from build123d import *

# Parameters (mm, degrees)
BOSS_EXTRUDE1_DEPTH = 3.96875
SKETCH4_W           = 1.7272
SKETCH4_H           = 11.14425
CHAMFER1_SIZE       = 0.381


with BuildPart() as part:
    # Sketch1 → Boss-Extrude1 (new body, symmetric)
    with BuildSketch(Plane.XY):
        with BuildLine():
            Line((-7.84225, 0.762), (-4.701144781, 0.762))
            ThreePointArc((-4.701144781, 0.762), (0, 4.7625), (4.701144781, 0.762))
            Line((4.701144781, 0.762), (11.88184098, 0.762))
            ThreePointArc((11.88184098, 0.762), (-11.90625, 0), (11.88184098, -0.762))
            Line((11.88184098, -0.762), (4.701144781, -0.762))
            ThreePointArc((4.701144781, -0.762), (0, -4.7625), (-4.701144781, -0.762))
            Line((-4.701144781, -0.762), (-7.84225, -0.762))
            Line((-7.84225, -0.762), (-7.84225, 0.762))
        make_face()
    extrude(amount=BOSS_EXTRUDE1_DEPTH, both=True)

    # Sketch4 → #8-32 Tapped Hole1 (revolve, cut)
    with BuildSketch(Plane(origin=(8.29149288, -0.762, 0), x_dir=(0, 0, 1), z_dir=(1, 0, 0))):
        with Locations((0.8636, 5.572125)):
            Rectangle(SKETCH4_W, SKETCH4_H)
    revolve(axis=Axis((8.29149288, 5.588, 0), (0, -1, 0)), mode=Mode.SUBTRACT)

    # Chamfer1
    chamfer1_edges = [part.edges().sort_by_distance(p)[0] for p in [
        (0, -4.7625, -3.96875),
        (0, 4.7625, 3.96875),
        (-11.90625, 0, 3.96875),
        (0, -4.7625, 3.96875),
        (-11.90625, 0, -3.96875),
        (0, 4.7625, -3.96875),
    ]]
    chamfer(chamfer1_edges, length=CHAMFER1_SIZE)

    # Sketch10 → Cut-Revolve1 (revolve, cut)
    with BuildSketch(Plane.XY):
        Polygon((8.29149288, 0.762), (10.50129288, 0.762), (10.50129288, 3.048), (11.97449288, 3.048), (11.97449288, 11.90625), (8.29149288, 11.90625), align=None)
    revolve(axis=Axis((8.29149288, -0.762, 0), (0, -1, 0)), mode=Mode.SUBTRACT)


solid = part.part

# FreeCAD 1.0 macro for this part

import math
import FreeCAD as App
import Part
import Sketcher
Q = App.Units.Quantity


def edges_at(feature, points):
    """Names of the edges that pass closest to the given points."""
    edges = feature.Shape.Edges
    near = lambda p: min(range(len(edges)), key=lambda i: edges[i].distToShape(Part.Vertex(*p))[0])
    return sorted({f"Edge{near(p) + 1}" for p in points})

doc = App.newDocument("Part")
params = doc.addObject("Spreadsheet::Sheet", "Params")
for row, (alias, value) in enumerate([
    ("sketch1_radius", "0.1875 in"),
    ("sketch1_radius2", "0.46875 in"),
    ("sketch1_height", "0.06 in"),
    ("pad1_length", "0.3125 in"),
    ("sketch2_height", "0.068 in"),
    ("groove_angle", "360 deg"),
    ("chamfer_size", "0.015 in"),
    ("sketch3_height", "0.09 in"),
    ("sketch3_width", "0.087 in"),
    ("sketch3_width2", "0.058 in"),
    ("groove2_angle", "360 deg"),
], start=1):
    params.set(f"A{row}", alias)
    params.set(f"B{row}", "=" + value)
    params.setAlias(f"B{row}", alias)

body = doc.addObject("PartDesign::Body", "Body")

# Sketch on XY plane
sketch1 = body.newObject("Sketcher::SketchObject", "Sketch")
sketch1.AttachmentSupport = (doc.getObject("XY_Plane"), [""])
sketch1.MapMode = "FlatFace"
sketch1.addGeometry(Part.LineSegment(App.Vector(-7.8, 0.8, 0), App.Vector(-4.7, 0.8, 0)), False)
sketch1.addGeometry(Part.ArcOfCircle(Part.Circle(App.Vector(0, 0, 0), App.Vector(0, 0, 1), 4.8), math.radians(9), math.radians(171)), False)
sketch1.addGeometry(Part.LineSegment(App.Vector(4.7, 0.8, 0), App.Vector(11.9, 0.8, 0)), False)
sketch1.addGeometry(Part.ArcOfCircle(Part.Circle(App.Vector(0, 0, 0), App.Vector(0, 0, 1), 11.9), math.radians(4), math.radians(356)), False)
sketch1.addGeometry(Part.LineSegment(App.Vector(11.9, -0.8, 0), App.Vector(4.7, -0.8, 0)), False)
sketch1.addGeometry(Part.ArcOfCircle(Part.Circle(App.Vector(0, 0, 0), App.Vector(0, 0, 1), 4.8), math.radians(-171), math.radians(-9)), False)
sketch1.addGeometry(Part.LineSegment(App.Vector(-4.7, -0.8, 0), App.Vector(-7.8, -0.8, 0)), False)
sketch1.addGeometry(Part.LineSegment(App.Vector(-7.8, -0.8, 0), App.Vector(-7.8, 0.8, 0)), False)
sketch1.addConstraint(Sketcher.Constraint("Coincident", 0, 2, 1, 2))
sketch1.addConstraint(Sketcher.Constraint("Coincident", 1, 1, 2, 1))
sketch1.addConstraint(Sketcher.Constraint("Coincident", 2, 2, 3, 1))
sketch1.addConstraint(Sketcher.Constraint("Coincident", 3, 2, 4, 1))
sketch1.addConstraint(Sketcher.Constraint("Coincident", 4, 2, 5, 2))
sketch1.addConstraint(Sketcher.Constraint("Coincident", 5, 1, 6, 1))
sketch1.addConstraint(Sketcher.Constraint("Coincident", 6, 2, 7, 1))
sketch1.addConstraint(Sketcher.Constraint("Coincident", 7, 2, 0, 1))
sketch1.addConstraint(Sketcher.Constraint("Horizontal", 0))
sketch1.addConstraint(Sketcher.Constraint("Horizontal", 2))
sketch1.addConstraint(Sketcher.Constraint("Horizontal", 4))
sketch1.addConstraint(Sketcher.Constraint("Horizontal", 6))
sketch1.addConstraint(Sketcher.Constraint("Vertical", 7))
sketch1.addConstraint(Sketcher.Constraint("Coincident", 1, 3, -1, 1))
sketch1.addConstraint(Sketcher.Constraint("Coincident", 3, 3, -1, 1))
sketch1.addConstraint(Sketcher.Constraint("Coincident", 5, 3, -1, 1))
sketch1.addConstraint(Sketcher.Constraint("Equal", 1, 5))
sketch1.addConstraint(Sketcher.Constraint("Horizontal", 0, 2, 1, 1))
sketch1.addConstraint(Sketcher.Constraint("Horizontal", 4, 2, 5, 1))
sketch1.addConstraint(Sketcher.Constraint("Vertical", 2, 2, 3, 2))
sketch1.addConstraint(Sketcher.Constraint("Radius", 1, Q("0.1875 in")))
sketch1.addConstraint(Sketcher.Constraint("Radius", 3, Q("0.46875 in")))
sketch1.addConstraint(Sketcher.Constraint("DistanceY", 7, 1, 7, 2, Q("0.06 in")))
sketch1.addConstraint(Sketcher.Constraint("DistanceX", 0, 1, 0, 2, 3.141105))
sketch1.setExpression("Constraints[20]", "Params.sketch1_radius")
sketch1.setExpression("Constraints[21]", "Params.sketch1_radius2")
sketch1.setExpression("Constraints[22]", "Params.sketch1_height")
pad1 = body.newObject("PartDesign::Pad", "Pad")
pad1.Profile = sketch1
pad1.setExpression("Length", "Params.pad1_length")
pad1.Midplane = True

# Sketch on YZ plane
sketch2 = body.newObject("Sketcher::SketchObject", "Sketch001")
sketch2.AttachmentSupport = (doc.getObject("YZ_Plane"), [""])
sketch2.MapMode = "FlatFace"
sketch2.AttachmentOffset = App.Placement(App.Vector(0, 0, 8.291493), App.Rotation())
sketch2.addGeometry(Part.LineSegment(App.Vector(-11.9, 0, 0), App.Vector(-0.8, 0, 0)), False)
sketch2.addGeometry(Part.LineSegment(App.Vector(-0.8, 0, 0), App.Vector(-0.8, 1.7, 0)), False)
sketch2.addGeometry(Part.LineSegment(App.Vector(-0.8, 1.7, 0), App.Vector(-11.9, 1.7, 0)), False)
sketch2.addGeometry(Part.LineSegment(App.Vector(-11.9, 1.7, 0), App.Vector(-11.9, 0, 0)), False)
sketch2.addConstraint(Sketcher.Constraint("Coincident", 0, 2, 1, 1))
sketch2.addConstraint(Sketcher.Constraint("Coincident", 1, 2, 2, 1))
sketch2.addConstraint(Sketcher.Constraint("Coincident", 2, 2, 3, 1))
sketch2.addConstraint(Sketcher.Constraint("Coincident", 3, 2, 0, 1))
sketch2.addConstraint(Sketcher.Constraint("Horizontal", 0))
sketch2.addConstraint(Sketcher.Constraint("Vertical", 1))
sketch2.addConstraint(Sketcher.Constraint("Horizontal", 2))
sketch2.addConstraint(Sketcher.Constraint("Vertical", 3))
sketch2.addConstraint(Sketcher.Constraint("PointOnObject", 0, 2, -1))
sketch2.addConstraint(Sketcher.Constraint("DistanceY", 1, 1, 1, 2, Q("0.068 in")))
sketch2.addConstraint(Sketcher.Constraint("DistanceX", 0, 2, -1, 1, Q("0.03 in")))
sketch2.addConstraint(Sketcher.Constraint("DistanceX", 2, 2, -1, 1, Q("0.46875 in")))
sketch2.setExpression("Constraints[9]", "Params.sketch2_height")
groove = body.newObject("PartDesign::Groove", "Groove")
groove.Profile = sketch2
groove.ReferenceAxis = (sketch2, ["H_Axis"])
groove.setExpression("Angle", "Params.groove_angle")
doc.recompute()

chamfer = body.newObject("PartDesign::Chamfer", "Chamfer")
chamfer.Base = (groove, edges_at(groove, [
    (0, -4.763, -3.969),
    (0, 4.763, 3.969),
    (-11.906, 0, 3.969),
    (0, -4.763, 3.969),
    (-11.906, 0, -3.969),
    (0, 4.763, -3.969),
]))
chamfer.setExpression("Size", "Params.chamfer_size")

# Sketch on XY plane
sketch3 = body.newObject("Sketcher::SketchObject", "Sketch002")
sketch3.AttachmentSupport = (doc.getObject("XY_Plane"), [""])
sketch3.MapMode = "FlatFace"
sketch3.addGeometry(Part.LineSegment(App.Vector(8.3, 0.8, 0), App.Vector(10.5, 0.8, 0)), False)
sketch3.addGeometry(Part.LineSegment(App.Vector(10.5, 0.8, 0), App.Vector(10.5, 3, 0)), False)
sketch3.addGeometry(Part.LineSegment(App.Vector(10.5, 3, 0), App.Vector(12, 3, 0)), False)
sketch3.addGeometry(Part.LineSegment(App.Vector(12, 3, 0), App.Vector(12, 11.9, 0)), False)
sketch3.addGeometry(Part.LineSegment(App.Vector(12, 11.9, 0), App.Vector(8.3, 11.9, 0)), False)
sketch3.addGeometry(Part.LineSegment(App.Vector(8.3, 11.9, 0), App.Vector(8.3, 0.8, 0)), False)
sketch3.addGeometry(Part.LineSegment(App.Vector(8.3, 11.9, 0), App.Vector(8.3, 0.8, 0)), True)  # axis
sketch3.addConstraint(Sketcher.Constraint("Coincident", 0, 2, 1, 1))
sketch3.addConstraint(Sketcher.Constraint("Coincident", 1, 2, 2, 1))
sketch3.addConstraint(Sketcher.Constraint("Coincident", 2, 2, 3, 1))
sketch3.addConstraint(Sketcher.Constraint("Coincident", 3, 2, 4, 1))
sketch3.addConstraint(Sketcher.Constraint("Coincident", 4, 2, 5, 1))
sketch3.addConstraint(Sketcher.Constraint("Coincident", 5, 2, 0, 1))
sketch3.addConstraint(Sketcher.Constraint("Horizontal", 0))
sketch3.addConstraint(Sketcher.Constraint("Vertical", 1))
sketch3.addConstraint(Sketcher.Constraint("Horizontal", 2))
sketch3.addConstraint(Sketcher.Constraint("Vertical", 3))
sketch3.addConstraint(Sketcher.Constraint("Horizontal", 4))
sketch3.addConstraint(Sketcher.Constraint("Vertical", 5))
sketch3.addConstraint(Sketcher.Constraint("Vertical", 6))
sketch3.addConstraint(Sketcher.Constraint("Coincident", 6, 1, 4, 2))
sketch3.addConstraint(Sketcher.Constraint("Horizontal", 0, 2, 6, 2))
sketch3.addConstraint(Sketcher.Constraint("DistanceY", 1, 1, 1, 2, Q("0.09 in")))
sketch3.addConstraint(Sketcher.Constraint("DistanceX", 0, 1, 0, 2, Q("0.087 in")))
sketch3.addConstraint(Sketcher.Constraint("DistanceX", 2, 1, 2, 2, Q("0.058 in")))
sketch3.addConstraint(Sketcher.Constraint("DistanceY", -1, 1, 0, 2, Q("0.03 in")))
sketch3.addConstraint(Sketcher.Constraint("DistanceY", -1, 1, 3, 2, Q("0.46875 in")))
sketch3.addConstraint(Sketcher.Constraint("DistanceX", -1, 1, 0, 2, 10.501293))
sketch3.setExpression("Constraints[15]", "Params.sketch3_height")
sketch3.setExpression("Constraints[16]", "Params.sketch3_width")
sketch3.setExpression("Constraints[17]", "Params.sketch3_width2")
groove2 = body.newObject("PartDesign::Groove", "Groove001")
groove2.Profile = sketch3
groove2.ReferenceAxis = (sketch3, ["Axis0"])
groove2.setExpression("Angle", "Params.groove2_angle")

doc.recompute()
